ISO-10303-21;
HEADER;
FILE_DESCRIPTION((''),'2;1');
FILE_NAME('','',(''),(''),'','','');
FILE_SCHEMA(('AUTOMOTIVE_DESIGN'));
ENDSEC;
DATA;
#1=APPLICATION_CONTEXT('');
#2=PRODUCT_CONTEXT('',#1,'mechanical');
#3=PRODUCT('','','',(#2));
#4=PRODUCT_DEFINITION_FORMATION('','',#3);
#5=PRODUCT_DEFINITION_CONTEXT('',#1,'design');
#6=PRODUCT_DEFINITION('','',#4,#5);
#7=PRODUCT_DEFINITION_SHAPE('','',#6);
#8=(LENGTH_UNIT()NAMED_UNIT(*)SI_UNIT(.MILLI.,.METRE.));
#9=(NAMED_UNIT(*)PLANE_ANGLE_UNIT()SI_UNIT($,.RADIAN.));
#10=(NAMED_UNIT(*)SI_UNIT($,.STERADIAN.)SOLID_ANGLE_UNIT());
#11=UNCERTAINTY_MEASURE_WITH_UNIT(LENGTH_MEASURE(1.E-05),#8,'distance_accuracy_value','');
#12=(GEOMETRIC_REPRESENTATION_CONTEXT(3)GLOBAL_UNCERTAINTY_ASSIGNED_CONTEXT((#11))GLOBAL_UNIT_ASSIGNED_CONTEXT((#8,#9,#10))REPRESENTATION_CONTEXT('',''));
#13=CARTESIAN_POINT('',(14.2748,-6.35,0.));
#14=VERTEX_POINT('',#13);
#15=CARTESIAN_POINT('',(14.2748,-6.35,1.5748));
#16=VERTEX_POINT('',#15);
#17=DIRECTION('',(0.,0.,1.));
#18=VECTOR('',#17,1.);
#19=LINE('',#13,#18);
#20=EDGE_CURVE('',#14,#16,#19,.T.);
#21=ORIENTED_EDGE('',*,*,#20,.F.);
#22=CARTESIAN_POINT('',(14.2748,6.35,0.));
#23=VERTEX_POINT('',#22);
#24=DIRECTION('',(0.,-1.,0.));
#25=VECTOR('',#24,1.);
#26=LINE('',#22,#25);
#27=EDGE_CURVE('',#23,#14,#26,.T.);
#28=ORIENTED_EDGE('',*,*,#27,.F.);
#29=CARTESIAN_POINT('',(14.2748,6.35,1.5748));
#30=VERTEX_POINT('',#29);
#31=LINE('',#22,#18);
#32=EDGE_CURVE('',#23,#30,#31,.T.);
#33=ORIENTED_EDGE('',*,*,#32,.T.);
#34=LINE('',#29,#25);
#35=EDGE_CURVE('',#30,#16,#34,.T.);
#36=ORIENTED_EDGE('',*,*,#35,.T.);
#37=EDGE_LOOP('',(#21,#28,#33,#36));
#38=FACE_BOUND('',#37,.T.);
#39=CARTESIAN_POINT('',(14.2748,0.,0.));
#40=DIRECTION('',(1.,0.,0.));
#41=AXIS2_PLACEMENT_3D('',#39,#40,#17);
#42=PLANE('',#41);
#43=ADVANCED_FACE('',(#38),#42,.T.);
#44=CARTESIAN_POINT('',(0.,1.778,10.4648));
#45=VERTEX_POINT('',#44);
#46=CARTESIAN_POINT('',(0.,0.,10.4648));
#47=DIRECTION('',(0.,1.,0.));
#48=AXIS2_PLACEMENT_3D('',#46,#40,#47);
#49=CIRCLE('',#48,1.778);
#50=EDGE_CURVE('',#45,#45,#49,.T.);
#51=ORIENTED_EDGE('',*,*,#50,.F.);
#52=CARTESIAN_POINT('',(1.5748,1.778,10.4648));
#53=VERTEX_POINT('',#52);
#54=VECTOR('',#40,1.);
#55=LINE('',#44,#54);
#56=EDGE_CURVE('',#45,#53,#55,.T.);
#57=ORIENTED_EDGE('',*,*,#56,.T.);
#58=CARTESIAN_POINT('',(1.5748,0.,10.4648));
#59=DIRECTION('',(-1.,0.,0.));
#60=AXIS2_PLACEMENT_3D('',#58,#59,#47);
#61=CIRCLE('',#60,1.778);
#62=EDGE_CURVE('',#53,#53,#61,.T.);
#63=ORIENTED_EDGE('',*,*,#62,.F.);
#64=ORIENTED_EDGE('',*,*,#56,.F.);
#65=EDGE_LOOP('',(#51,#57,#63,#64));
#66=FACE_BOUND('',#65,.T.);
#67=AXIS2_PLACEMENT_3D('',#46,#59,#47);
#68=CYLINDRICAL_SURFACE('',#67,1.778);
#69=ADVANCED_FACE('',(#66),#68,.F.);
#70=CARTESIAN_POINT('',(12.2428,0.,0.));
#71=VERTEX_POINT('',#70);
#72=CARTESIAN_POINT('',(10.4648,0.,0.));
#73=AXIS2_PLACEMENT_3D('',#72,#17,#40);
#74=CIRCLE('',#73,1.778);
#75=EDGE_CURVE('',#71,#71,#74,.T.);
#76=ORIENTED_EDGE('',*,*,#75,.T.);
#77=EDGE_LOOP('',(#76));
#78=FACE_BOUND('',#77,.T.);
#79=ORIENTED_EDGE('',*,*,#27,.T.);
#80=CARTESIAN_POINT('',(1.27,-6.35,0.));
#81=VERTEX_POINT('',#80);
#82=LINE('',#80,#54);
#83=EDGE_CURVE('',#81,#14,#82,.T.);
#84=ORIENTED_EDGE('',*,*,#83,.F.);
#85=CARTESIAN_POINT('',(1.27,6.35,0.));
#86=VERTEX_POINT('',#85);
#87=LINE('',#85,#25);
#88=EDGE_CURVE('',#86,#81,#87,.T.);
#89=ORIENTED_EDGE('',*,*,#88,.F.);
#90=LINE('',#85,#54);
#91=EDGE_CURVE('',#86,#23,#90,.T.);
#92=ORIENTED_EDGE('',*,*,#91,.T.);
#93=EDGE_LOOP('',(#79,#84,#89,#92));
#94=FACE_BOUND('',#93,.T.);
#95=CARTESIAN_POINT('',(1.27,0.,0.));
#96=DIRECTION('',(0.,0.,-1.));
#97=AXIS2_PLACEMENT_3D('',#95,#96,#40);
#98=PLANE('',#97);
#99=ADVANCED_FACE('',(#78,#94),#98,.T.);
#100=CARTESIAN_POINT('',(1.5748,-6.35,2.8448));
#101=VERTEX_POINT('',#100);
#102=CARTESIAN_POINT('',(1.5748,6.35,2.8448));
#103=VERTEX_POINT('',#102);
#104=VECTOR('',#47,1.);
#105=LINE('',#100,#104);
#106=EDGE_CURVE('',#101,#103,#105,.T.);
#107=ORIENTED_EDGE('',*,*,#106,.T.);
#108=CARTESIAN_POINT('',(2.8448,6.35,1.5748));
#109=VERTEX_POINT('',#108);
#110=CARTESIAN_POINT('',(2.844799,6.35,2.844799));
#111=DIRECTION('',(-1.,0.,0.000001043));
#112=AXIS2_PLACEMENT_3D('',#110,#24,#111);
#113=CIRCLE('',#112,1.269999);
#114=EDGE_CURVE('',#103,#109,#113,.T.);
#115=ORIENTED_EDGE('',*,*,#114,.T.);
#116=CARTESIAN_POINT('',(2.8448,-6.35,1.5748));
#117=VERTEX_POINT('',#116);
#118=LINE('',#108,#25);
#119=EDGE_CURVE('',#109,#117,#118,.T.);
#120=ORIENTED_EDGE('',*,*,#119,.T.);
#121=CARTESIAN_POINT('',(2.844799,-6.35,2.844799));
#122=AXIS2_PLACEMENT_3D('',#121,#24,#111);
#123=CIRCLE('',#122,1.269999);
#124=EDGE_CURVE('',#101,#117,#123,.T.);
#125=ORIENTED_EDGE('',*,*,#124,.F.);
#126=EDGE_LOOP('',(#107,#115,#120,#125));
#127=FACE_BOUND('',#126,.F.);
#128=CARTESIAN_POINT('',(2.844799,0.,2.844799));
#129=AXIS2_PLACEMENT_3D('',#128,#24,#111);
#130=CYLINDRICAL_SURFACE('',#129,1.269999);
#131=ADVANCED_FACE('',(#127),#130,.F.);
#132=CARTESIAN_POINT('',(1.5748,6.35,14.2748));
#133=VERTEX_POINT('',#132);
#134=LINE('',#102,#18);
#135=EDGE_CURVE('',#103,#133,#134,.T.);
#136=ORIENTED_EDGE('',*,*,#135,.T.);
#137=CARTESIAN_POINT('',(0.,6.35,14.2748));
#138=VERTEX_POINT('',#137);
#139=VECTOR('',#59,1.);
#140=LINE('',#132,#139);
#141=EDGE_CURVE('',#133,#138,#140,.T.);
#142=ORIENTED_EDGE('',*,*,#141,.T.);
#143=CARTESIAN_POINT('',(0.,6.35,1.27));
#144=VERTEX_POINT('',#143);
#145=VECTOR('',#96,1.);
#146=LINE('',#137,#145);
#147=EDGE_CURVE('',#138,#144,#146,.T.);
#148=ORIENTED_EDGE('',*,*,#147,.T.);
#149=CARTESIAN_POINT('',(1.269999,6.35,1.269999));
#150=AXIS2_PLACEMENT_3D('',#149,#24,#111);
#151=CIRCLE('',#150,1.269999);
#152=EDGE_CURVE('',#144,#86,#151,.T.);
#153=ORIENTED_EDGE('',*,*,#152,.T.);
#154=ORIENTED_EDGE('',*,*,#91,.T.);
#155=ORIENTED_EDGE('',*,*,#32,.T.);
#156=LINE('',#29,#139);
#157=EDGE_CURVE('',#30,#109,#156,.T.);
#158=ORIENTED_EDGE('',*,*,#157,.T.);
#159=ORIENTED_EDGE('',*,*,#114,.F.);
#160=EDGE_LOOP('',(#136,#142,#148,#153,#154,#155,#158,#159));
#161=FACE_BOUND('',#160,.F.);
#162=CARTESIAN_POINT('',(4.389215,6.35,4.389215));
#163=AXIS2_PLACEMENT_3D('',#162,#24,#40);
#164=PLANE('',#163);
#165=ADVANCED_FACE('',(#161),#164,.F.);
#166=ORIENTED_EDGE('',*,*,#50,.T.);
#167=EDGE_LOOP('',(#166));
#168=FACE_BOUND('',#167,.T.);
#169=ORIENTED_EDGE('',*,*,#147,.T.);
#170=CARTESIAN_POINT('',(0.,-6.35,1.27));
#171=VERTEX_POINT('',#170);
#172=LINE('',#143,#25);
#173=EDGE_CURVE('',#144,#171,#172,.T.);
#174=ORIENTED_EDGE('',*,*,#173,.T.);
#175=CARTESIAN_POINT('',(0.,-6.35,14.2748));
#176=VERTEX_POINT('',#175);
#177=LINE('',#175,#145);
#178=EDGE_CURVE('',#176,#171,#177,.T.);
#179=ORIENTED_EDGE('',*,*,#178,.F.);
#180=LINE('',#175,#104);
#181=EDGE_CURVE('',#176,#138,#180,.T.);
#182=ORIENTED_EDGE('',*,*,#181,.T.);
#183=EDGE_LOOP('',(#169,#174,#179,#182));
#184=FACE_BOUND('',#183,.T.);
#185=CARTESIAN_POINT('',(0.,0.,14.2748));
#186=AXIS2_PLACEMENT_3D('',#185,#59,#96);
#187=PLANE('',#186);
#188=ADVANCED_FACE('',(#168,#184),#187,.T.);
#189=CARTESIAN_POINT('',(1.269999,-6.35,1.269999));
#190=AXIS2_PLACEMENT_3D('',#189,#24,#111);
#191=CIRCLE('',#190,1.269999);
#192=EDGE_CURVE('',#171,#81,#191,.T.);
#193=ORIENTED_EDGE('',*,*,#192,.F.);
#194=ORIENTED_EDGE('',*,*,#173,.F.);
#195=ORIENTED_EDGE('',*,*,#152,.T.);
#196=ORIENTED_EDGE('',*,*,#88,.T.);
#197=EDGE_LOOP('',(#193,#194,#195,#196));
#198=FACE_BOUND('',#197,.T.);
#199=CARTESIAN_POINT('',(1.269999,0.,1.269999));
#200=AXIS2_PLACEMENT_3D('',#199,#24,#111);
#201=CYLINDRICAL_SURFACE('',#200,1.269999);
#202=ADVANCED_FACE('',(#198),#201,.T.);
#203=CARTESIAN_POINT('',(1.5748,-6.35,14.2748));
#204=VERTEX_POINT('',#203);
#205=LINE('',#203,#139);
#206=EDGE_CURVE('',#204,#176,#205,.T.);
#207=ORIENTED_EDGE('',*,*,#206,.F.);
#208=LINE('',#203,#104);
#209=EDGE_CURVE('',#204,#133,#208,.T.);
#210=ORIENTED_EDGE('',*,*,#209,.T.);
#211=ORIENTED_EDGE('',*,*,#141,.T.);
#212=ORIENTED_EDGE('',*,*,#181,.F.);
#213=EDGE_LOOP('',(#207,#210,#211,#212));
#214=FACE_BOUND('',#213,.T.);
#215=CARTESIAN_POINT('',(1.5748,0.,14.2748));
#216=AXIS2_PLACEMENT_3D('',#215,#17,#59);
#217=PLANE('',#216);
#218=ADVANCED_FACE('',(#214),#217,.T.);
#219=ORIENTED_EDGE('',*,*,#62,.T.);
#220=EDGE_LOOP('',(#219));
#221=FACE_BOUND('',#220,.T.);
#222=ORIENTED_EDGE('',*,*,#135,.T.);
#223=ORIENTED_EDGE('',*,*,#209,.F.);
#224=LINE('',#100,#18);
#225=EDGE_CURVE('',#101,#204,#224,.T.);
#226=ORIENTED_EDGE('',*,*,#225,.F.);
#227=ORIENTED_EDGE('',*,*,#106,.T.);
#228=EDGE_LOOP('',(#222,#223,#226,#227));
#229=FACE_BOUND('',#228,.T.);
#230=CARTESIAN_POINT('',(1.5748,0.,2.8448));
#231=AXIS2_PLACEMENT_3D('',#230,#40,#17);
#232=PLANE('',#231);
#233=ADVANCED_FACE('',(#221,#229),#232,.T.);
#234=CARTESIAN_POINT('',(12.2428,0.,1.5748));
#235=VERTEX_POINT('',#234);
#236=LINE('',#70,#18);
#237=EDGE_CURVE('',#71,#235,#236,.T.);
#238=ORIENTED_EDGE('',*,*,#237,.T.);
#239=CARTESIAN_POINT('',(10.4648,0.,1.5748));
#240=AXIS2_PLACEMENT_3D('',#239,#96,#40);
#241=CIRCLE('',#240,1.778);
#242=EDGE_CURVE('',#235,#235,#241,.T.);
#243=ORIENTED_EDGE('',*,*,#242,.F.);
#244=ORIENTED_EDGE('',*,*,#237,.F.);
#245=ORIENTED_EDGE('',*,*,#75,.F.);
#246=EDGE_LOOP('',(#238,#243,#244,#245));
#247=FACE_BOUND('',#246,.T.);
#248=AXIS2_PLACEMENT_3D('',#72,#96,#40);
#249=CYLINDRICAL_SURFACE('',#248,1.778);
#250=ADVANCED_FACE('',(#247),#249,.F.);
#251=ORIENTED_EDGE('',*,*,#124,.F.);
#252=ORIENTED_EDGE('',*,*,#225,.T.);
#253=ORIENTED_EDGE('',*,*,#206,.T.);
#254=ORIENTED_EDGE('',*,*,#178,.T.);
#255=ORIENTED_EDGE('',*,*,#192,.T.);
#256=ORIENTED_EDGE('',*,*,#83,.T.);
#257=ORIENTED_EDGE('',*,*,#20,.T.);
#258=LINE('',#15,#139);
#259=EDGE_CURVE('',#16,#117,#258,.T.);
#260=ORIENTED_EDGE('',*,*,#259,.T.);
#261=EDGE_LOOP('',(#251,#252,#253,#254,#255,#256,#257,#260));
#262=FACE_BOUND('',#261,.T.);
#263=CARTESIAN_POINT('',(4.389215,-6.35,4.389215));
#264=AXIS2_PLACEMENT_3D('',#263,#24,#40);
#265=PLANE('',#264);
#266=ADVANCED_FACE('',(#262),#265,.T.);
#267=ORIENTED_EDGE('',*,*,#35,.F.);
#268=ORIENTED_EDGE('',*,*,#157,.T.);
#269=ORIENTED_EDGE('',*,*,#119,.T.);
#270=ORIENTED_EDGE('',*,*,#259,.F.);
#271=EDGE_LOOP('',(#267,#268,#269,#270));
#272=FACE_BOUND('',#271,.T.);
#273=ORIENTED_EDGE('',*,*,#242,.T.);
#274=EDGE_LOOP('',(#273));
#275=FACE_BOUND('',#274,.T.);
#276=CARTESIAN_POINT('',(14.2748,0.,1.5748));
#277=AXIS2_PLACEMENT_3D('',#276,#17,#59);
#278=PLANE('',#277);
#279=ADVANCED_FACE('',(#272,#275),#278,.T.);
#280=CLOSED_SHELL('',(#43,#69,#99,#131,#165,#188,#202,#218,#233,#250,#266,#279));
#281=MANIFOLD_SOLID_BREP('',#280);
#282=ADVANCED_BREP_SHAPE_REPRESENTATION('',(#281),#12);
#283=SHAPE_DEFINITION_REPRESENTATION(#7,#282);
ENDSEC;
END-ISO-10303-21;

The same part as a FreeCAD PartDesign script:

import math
import FreeCAD as App
import Part
import Sketcher
from FreeCAD import Vector
Q = App.Units.Quantity

doc = App.newDocument("Part")
params = doc.addObject("Spreadsheet::Sheet", "Params")
for row, (alias, value) in enumerate([
    ("sketch1_radius", "0.0499999 in"),
    ("sketch1_width", "0.45 in"),
    ("sketch1_width2", "0.512 in"),
    ("pad1_length", "0.5 in"),
    ("sketch2_diameter", "0.14 in"),
    ("sketch3_diameter", "0.14 in"),
], start=1):
    params.set(f"A{row}", alias)
    params.set(f"B{row}", "=" + value)
    params.setAlias(f"B{row}", alias)

body = doc.addObject("PartDesign::Body", "Body")

sketch1 = body.newObject("Sketcher::SketchObject", "Sketch")
sketch1.AttachmentSupport = (doc.getObject("XZ_Plane"), [""])
sketch1.MapMode = "FlatFace"
sketch1.addGeometry(Part.LineSegment(Vector(0, 14.3, 0), Vector(0, 1.3, 0)), False)
sketch1.addGeometry(Part.ArcOfCircle(Part.Circle(Vector(1.3, 1.3, 0), Vector(0, 0, 1), 1.3), math.radians(180), math.radians(270)), False)
sketch1.addGeometry(Part.LineSegment(Vector(1.3, 0, 0), Vector(14.3, 0, 0)), False)
sketch1.addGeometry(Part.LineSegment(Vector(14.3, 0, 0), Vector(14.3, 1.6, 0)), False)
sketch1.addGeometry(Part.LineSegment(Vector(14.3, 1.6, 0), Vector(2.8, 1.6, 0)), False)
sketch1.addGeometry(Part.ArcOfCircle(Part.Circle(Vector(2.8, 2.8, 0), Vector(0, 0, 1), 1.3), math.radians(180), math.radians(270)), False)
sketch1.addGeometry(Part.LineSegment(Vector(1.6, 2.8, 0), Vector(1.6, 14.3, 0)), False)
sketch1.addGeometry(Part.LineSegment(Vector(1.6, 14.3, 0), Vector(0, 14.3, 0)), False)
sketch1.addConstraint(Sketcher.Constraint("Tangent", 0, 2, 1, 1))
sketch1.addConstraint(Sketcher.Constraint("Tangent", 1, 2, 2, 1))
sketch1.addConstraint(Sketcher.Constraint("Coincident", 2, 2, 3, 1))
sketch1.addConstraint(Sketcher.Constraint("Coincident", 3, 2, 4, 1))
sketch1.addConstraint(Sketcher.Constraint("Tangent", 4, 2, 5, 2))
sketch1.addConstraint(Sketcher.Constraint("Tangent", 5, 1, 6, 1))
sketch1.addConstraint(Sketcher.Constraint("Coincident", 6, 2, 7, 1))
sketch1.addConstraint(Sketcher.Constraint("Coincident", 7, 2, 0, 1))
sketch1.addConstraint(Sketcher.Constraint("Vertical", 0))
sketch1.addConstraint(Sketcher.Constraint("Horizontal", 2))
sketch1.addConstraint(Sketcher.Constraint("Vertical", 3))
sketch1.addConstraint(Sketcher.Constraint("Horizontal", 4))
sketch1.addConstraint(Sketcher.Constraint("Vertical", 6))
sketch1.addConstraint(Sketcher.Constraint("Horizontal", 7))
sketch1.addConstraint(Sketcher.Constraint("Equal", 1, 5))
sketch1.addConstraint(Sketcher.Constraint("PointOnObject", 0, 2, -2))
sketch1.addConstraint(Sketcher.Constraint("PointOnObject", 1, 2, -1))
sketch1.addConstraint(Sketcher.Constraint("Equal", 2, 0))
sketch1.addConstraint(Sketcher.Constraint("Equal", 7, 3))
sketch1.addConstraint(Sketcher.Constraint("Radius", 1, Q("0.0499999 in")))
sketch1.addConstraint(Sketcher.Constraint("DistanceX", 4, 2, 4, 1, Q("0.45 in")))
sketch1.addConstraint(Sketcher.Constraint("DistanceX", 2, 1, 2, 2, Q("0.512 in")))
sketch1.setExpression("Constraints[19]", "Params.sketch1_radius")
sketch1.setExpression("Constraints[20]", "Params.sketch1_width")
sketch1.setExpression("Constraints[21]", "Params.sketch1_width2")
pad1 = body.newObject("PartDesign::Pad", "Pad")
pad1.Profile = sketch1
pad1.setExpression("Length", "Params.pad1_length")
pad1.Midplane = True

sketch2 = body.newObject("Sketcher::SketchObject", "Sketch001")
sketch2.AttachmentSupport = (doc.getObject("XY_Plane"), [""])
sketch2.MapMode = "FlatFace"
sketch2.addGeometry(Part.Circle(Vector(10.5, 0, 0), Vector(0, 0, 1), 1.8), False)
sketch2.addConstraint(Sketcher.Constraint("PointOnObject", 0, 3, -1))
sketch2.addConstraint(Sketcher.Constraint("Diameter", 0, Q("0.14 in")))
sketch2.addConstraint(Sketcher.Constraint("DistanceX", -1, 1, 0, 3, Q("0.412 in")))
sketch2.setExpression("Constraints[1]", "Params.sketch2_diameter")
pocket1 = body.newObject("PartDesign::Pocket", "Pocket")
pocket1.Profile = sketch2
pocket1.Type = "ThroughAll"
pocket1.Reversed = True

sketch3 = body.newObject("Sketcher::SketchObject", "Sketch002")
sketch3.AttachmentSupport = (doc.getObject("YZ_Plane"), [""])
sketch3.MapMode = "FlatFace"
sketch3.addGeometry(Part.Circle(Vector(0, 10.5, 0), Vector(0, 0, 1), 1.8), False)
sketch3.addConstraint(Sketcher.Constraint("PointOnObject", 0, 3, -2))
sketch3.addConstraint(Sketcher.Constraint("Diameter", 0, Q("0.14 in")))
sketch3.addConstraint(Sketcher.Constraint("DistanceY", -1, 1, 0, 3, Q("0.412 in")))
sketch3.setExpression("Constraints[1]", "Params.sketch3_diameter")
pocket2 = body.newObject("PartDesign::Pocket", "Pocket001")
pocket2.Profile = sketch3
pocket2.Type = "ThroughAll"
pocket2.Reversed = True

doc.recompute()
